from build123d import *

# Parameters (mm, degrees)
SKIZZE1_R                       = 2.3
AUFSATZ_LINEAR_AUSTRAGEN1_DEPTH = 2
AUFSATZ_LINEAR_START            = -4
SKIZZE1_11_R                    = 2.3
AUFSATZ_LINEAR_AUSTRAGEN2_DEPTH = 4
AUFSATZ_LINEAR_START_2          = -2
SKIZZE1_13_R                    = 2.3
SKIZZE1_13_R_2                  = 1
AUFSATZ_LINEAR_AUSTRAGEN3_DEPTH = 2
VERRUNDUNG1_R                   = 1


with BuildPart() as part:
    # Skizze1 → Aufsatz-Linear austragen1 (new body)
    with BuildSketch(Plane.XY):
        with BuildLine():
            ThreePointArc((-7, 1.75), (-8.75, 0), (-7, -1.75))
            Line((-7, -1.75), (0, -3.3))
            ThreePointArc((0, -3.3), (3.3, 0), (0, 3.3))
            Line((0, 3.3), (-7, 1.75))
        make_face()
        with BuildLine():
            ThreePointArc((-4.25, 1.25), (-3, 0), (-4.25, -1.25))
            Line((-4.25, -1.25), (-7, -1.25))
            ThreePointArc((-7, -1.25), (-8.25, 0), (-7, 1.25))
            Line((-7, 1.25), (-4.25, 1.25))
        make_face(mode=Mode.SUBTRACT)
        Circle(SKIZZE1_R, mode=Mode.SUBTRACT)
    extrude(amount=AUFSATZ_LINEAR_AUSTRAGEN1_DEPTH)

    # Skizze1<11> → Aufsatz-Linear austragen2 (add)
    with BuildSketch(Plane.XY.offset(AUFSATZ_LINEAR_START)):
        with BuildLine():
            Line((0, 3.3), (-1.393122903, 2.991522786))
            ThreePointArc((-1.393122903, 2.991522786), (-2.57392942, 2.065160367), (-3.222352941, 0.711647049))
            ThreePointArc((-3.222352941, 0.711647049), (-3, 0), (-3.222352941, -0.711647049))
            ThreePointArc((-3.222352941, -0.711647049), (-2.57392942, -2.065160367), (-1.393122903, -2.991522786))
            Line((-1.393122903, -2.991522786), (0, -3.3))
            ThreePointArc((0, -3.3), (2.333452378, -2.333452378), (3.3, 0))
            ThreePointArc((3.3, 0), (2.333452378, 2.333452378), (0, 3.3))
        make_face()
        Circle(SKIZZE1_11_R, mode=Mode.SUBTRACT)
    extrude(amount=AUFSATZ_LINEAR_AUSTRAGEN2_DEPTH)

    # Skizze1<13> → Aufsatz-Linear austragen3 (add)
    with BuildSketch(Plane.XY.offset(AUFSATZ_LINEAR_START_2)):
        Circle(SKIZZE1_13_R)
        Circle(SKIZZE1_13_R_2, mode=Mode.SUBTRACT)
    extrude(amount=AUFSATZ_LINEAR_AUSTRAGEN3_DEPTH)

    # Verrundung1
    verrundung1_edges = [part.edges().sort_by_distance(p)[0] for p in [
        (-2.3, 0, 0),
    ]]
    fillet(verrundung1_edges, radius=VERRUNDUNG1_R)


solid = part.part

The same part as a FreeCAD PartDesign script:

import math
import FreeCAD as App
import Part
import Sketcher
from FreeCAD import Vector


def edges_at(feature, points):
    """Names of the edges that pass closest to the given points."""
    edges = feature.Shape.Edges
    near = lambda p: min(range(len(edges)), key=lambda i: edges[i].distToShape(Part.Vertex(*p))[0])
    return sorted({f"Edge{near(p) + 1}" for p in points})

doc = App.newDocument("Part")
body = doc.addObject("PartDesign::Body", "Body")

sketch1 = doc.addObject("Sketcher::SketchObject", "Sketch")
body.addObject(sketch1)
sketch1.AttachmentSupport = (doc.XY_Plane, [""])
sketch1.MapMode = "FlatFace"
sketch1.addGeometry([
    Part.ArcOfCircle(Part.Circle(Vector(-7, 0, 0), Vector(0, 0, 1), 1.75), math.radians(90), math.radians(270)),
    Part.LineSegment(Vector(-7, -1.75, 0), Vector(0, -3.3, 0)),
    Part.ArcOfCircle(Part.Circle(Vector(0, 0, 0), Vector(0, 0, 1), 3.3), math.radians(-90), math.radians(90)),
    Part.LineSegment(Vector(0, 3.3, 0), Vector(-7, 1.75, 0)),
    Part.LineSegment(Vector(-7, 1.25, 0), Vector(-4.25, 1.25, 0)),
    Part.ArcOfCircle(Part.Circle(Vector(-4.25, 0, 0), Vector(0, 0, 1), 1.25), math.radians(-90), math.radians(90)),
    Part.LineSegment(Vector(-4.25, -1.25, 0), Vector(-7, -1.25, 0)),
    Part.ArcOfCircle(Part.Circle(Vector(-7, 0, 0), Vector(0, 0, 1), 1.25), math.radians(90), math.radians(270)),
    Part.Circle(Vector(0, 0, 0), Vector(0, 0, 1), 2.3),
], False)
sketch1.addConstraint([
    Sketcher.Constraint("Coincident", 0, 2, 1, 1),
    Sketcher.Constraint("Coincident", 1, 2, 2, 1),
    Sketcher.Constraint("Coincident", 2, 2, 3, 1),
    Sketcher.Constraint("Coincident", 3, 2, 0, 1),
    Sketcher.Constraint("Tangent", 4, 2, 5, 2),
    Sketcher.Constraint("Tangent", 5, 1, 6, 1),
    Sketcher.Constraint("Tangent", 6, 2, 7, 2),
    Sketcher.Constraint("Tangent", 7, 1, 4, 1),
    Sketcher.Constraint("Horizontal", 4),
    Sketcher.Constraint("Horizontal", 6),
    Sketcher.Constraint("Coincident", 2, 3, -1, 1),
    Sketcher.Constraint("Coincident", 8, 3, -1, 1),
    Sketcher.Constraint("Coincident", 7, 3, 0, 3),
    Sketcher.Constraint("Symmetric", 0, 2, 3, 2, -1),
    Sketcher.Constraint("PointOnObject", 1, 2, -2),
    Sketcher.Constraint("PointOnObject", 2, 2, -2),
    Sketcher.Constraint("Vertical", 7, 3, 0, 2),
    Sketcher.Constraint("Diameter", 8, 4.6),
    Sketcher.Constraint("Radius", 2, 3.3),
    Sketcher.Constraint("Radius", 0, 1.75),
    Sketcher.Constraint("Radius", 5, 1.25),
    Sketcher.Constraint("DistanceX", 0, 3, -1, 1, 7.0),
    Sketcher.Constraint("DistanceX", 4, 1, 4, 2, 2.75),
])
pad1 = doc.addObject("PartDesign::Pad", "Pad")
body.addObject(pad1)
pad1.Profile = sketch1
pad1.Length = 2

sketch2 = doc.addObject("Sketcher::SketchObject", "Sketch001")
body.addObject(sketch2)
sketch2.AttachmentSupport = (doc.XY_Plane, [""])
sketch2.MapMode = "FlatFace"
sketch2.AttachmentOffset = App.Placement(Vector(0, 0, -4), App.Rotation())
sketch2.addGeometry([
    Part.LineSegment(Vector(0, 3.3, 0), Vector(-1.393123, 2.991523, 0)),
    Part.ArcOfCircle(Part.Circle(Vector(0, 0, 0), Vector(0, 0, 1), 3.3), math.radians(114.970935), math.radians(167.546299)),
    Part.ArcOfCircle(Part.Circle(Vector(-4.25, 0, 0), Vector(0, 0, 1), 1.25), math.radians(-34.702656), math.radians(34.702656)),
    Part.ArcOfCircle(Part.Circle(Vector(0, 0, 0), Vector(0, 0, 1), 3.3), math.radians(-167.546299), math.radians(-114.970935)),
    Part.LineSegment(Vector(-1.393123, -2.991523, 0), Vector(0, -3.3, 0)),
    Part.ArcOfCircle(Part.Circle(Vector(0, 0, 0), Vector(0, 0, 1), 3.3), math.radians(-90), math.radians(0)),
    Part.ArcOfCircle(Part.Circle(Vector(0, 0, 0), Vector(0, 0, 1), 3.3), math.radians(0), math.radians(90)),
    Part.Circle(Vector(0, 0, 0), Vector(0, 0, 1), 2.3),
], False)
sketch2.addConstraint([
    Sketcher.Constraint("Coincident", 0, 2, 1, 1),
    Sketcher.Constraint("Coincident", 1, 2, 2, 2),
    Sketcher.Constraint("Coincident", 2, 1, 3, 1),
    Sketcher.Constraint("Coincident", 3, 2, 4, 1),
    Sketcher.Constraint("Coincident", 4, 2, 5, 1),
    Sketcher.Constraint("Tangent", 5, 2, 6, 1),
    Sketcher.Constraint("Coincident", 6, 2, 0, 1),
    Sketcher.Constraint("Coincident", 1, 3, -1, 1),
    Sketcher.Constraint("Coincident", 3, 3, -1, 1),
    Sketcher.Constraint("Coincident", 5, 3, -1, 1),
    Sketcher.Constraint("Coincident", 7, 3, -1, 1),
    Sketcher.Constraint("Equal", 1, 3),
    Sketcher.Constraint("Equal", 3, 5),
    Sketcher.Constraint("Equal", 5, 6),
    Sketcher.Constraint("PointOnObject", 2, 3, -1),
    Sketcher.Constraint("PointOnObject", 4, 2, -2),
    Sketcher.Constraint("PointOnObject", 5, 2, -1),
    Sketcher.Constraint("PointOnObject", 6, 2, -2),
    Sketcher.Constraint("Vertical", 0, 2, 3, 2),
    Sketcher.Constraint("Diameter", 7, 4.6),
    Sketcher.Constraint("Radius", 1, 3.3),
    Sketcher.Constraint("Radius", 2, 1.25),
    Sketcher.Constraint("DistanceX", 2, 3, -1, 1, 4.25),
    Sketcher.Constraint("DistanceX", 1, 2, 0, 2, 1.82923),
])
pad2 = doc.addObject("PartDesign::Pad", "Pad001")
body.addObject(pad2)
pad2.Profile = sketch2
pad2.Length = 4

sketch3 = doc.addObject("Sketcher::SketchObject", "Sketch002")
body.addObject(sketch3)
sketch3.AttachmentSupport = (doc.XY_Plane, [""])
sketch3.MapMode = "FlatFace"
sketch3.AttachmentOffset = App.Placement(Vector(0, 0, -2), App.Rotation())
sketch3.addGeometry([
    Part.Circle(Vector(0, 0, 0), Vector(0, 0, 1), 2.3),
    Part.Circle(Vector(0, 0, 0), Vector(0, 0, 1), 1),
], False)
sketch3.addConstraint([
    Sketcher.Constraint("Coincident", 0, 3, -1, 1),
    Sketcher.Constraint("Coincident", 1, 3, -1, 1),
    Sketcher.Constraint("Diameter", 1, 2.0),
    Sketcher.Constraint("Diameter", 0, 4.6),
])
pad3 = doc.addObject("PartDesign::Pad", "Pad002")
body.addObject(pad3)
pad3.Profile = sketch3
pad3.Length = 2
doc.recompute()

fillet = doc.addObject("PartDesign::Fillet", "Fillet")
body.addObject(fillet)
fillet.Base = (pad3, edges_at(pad3, [(-2.3, 0, 0)]))
fillet.Radius = 1

doc.recompute()
